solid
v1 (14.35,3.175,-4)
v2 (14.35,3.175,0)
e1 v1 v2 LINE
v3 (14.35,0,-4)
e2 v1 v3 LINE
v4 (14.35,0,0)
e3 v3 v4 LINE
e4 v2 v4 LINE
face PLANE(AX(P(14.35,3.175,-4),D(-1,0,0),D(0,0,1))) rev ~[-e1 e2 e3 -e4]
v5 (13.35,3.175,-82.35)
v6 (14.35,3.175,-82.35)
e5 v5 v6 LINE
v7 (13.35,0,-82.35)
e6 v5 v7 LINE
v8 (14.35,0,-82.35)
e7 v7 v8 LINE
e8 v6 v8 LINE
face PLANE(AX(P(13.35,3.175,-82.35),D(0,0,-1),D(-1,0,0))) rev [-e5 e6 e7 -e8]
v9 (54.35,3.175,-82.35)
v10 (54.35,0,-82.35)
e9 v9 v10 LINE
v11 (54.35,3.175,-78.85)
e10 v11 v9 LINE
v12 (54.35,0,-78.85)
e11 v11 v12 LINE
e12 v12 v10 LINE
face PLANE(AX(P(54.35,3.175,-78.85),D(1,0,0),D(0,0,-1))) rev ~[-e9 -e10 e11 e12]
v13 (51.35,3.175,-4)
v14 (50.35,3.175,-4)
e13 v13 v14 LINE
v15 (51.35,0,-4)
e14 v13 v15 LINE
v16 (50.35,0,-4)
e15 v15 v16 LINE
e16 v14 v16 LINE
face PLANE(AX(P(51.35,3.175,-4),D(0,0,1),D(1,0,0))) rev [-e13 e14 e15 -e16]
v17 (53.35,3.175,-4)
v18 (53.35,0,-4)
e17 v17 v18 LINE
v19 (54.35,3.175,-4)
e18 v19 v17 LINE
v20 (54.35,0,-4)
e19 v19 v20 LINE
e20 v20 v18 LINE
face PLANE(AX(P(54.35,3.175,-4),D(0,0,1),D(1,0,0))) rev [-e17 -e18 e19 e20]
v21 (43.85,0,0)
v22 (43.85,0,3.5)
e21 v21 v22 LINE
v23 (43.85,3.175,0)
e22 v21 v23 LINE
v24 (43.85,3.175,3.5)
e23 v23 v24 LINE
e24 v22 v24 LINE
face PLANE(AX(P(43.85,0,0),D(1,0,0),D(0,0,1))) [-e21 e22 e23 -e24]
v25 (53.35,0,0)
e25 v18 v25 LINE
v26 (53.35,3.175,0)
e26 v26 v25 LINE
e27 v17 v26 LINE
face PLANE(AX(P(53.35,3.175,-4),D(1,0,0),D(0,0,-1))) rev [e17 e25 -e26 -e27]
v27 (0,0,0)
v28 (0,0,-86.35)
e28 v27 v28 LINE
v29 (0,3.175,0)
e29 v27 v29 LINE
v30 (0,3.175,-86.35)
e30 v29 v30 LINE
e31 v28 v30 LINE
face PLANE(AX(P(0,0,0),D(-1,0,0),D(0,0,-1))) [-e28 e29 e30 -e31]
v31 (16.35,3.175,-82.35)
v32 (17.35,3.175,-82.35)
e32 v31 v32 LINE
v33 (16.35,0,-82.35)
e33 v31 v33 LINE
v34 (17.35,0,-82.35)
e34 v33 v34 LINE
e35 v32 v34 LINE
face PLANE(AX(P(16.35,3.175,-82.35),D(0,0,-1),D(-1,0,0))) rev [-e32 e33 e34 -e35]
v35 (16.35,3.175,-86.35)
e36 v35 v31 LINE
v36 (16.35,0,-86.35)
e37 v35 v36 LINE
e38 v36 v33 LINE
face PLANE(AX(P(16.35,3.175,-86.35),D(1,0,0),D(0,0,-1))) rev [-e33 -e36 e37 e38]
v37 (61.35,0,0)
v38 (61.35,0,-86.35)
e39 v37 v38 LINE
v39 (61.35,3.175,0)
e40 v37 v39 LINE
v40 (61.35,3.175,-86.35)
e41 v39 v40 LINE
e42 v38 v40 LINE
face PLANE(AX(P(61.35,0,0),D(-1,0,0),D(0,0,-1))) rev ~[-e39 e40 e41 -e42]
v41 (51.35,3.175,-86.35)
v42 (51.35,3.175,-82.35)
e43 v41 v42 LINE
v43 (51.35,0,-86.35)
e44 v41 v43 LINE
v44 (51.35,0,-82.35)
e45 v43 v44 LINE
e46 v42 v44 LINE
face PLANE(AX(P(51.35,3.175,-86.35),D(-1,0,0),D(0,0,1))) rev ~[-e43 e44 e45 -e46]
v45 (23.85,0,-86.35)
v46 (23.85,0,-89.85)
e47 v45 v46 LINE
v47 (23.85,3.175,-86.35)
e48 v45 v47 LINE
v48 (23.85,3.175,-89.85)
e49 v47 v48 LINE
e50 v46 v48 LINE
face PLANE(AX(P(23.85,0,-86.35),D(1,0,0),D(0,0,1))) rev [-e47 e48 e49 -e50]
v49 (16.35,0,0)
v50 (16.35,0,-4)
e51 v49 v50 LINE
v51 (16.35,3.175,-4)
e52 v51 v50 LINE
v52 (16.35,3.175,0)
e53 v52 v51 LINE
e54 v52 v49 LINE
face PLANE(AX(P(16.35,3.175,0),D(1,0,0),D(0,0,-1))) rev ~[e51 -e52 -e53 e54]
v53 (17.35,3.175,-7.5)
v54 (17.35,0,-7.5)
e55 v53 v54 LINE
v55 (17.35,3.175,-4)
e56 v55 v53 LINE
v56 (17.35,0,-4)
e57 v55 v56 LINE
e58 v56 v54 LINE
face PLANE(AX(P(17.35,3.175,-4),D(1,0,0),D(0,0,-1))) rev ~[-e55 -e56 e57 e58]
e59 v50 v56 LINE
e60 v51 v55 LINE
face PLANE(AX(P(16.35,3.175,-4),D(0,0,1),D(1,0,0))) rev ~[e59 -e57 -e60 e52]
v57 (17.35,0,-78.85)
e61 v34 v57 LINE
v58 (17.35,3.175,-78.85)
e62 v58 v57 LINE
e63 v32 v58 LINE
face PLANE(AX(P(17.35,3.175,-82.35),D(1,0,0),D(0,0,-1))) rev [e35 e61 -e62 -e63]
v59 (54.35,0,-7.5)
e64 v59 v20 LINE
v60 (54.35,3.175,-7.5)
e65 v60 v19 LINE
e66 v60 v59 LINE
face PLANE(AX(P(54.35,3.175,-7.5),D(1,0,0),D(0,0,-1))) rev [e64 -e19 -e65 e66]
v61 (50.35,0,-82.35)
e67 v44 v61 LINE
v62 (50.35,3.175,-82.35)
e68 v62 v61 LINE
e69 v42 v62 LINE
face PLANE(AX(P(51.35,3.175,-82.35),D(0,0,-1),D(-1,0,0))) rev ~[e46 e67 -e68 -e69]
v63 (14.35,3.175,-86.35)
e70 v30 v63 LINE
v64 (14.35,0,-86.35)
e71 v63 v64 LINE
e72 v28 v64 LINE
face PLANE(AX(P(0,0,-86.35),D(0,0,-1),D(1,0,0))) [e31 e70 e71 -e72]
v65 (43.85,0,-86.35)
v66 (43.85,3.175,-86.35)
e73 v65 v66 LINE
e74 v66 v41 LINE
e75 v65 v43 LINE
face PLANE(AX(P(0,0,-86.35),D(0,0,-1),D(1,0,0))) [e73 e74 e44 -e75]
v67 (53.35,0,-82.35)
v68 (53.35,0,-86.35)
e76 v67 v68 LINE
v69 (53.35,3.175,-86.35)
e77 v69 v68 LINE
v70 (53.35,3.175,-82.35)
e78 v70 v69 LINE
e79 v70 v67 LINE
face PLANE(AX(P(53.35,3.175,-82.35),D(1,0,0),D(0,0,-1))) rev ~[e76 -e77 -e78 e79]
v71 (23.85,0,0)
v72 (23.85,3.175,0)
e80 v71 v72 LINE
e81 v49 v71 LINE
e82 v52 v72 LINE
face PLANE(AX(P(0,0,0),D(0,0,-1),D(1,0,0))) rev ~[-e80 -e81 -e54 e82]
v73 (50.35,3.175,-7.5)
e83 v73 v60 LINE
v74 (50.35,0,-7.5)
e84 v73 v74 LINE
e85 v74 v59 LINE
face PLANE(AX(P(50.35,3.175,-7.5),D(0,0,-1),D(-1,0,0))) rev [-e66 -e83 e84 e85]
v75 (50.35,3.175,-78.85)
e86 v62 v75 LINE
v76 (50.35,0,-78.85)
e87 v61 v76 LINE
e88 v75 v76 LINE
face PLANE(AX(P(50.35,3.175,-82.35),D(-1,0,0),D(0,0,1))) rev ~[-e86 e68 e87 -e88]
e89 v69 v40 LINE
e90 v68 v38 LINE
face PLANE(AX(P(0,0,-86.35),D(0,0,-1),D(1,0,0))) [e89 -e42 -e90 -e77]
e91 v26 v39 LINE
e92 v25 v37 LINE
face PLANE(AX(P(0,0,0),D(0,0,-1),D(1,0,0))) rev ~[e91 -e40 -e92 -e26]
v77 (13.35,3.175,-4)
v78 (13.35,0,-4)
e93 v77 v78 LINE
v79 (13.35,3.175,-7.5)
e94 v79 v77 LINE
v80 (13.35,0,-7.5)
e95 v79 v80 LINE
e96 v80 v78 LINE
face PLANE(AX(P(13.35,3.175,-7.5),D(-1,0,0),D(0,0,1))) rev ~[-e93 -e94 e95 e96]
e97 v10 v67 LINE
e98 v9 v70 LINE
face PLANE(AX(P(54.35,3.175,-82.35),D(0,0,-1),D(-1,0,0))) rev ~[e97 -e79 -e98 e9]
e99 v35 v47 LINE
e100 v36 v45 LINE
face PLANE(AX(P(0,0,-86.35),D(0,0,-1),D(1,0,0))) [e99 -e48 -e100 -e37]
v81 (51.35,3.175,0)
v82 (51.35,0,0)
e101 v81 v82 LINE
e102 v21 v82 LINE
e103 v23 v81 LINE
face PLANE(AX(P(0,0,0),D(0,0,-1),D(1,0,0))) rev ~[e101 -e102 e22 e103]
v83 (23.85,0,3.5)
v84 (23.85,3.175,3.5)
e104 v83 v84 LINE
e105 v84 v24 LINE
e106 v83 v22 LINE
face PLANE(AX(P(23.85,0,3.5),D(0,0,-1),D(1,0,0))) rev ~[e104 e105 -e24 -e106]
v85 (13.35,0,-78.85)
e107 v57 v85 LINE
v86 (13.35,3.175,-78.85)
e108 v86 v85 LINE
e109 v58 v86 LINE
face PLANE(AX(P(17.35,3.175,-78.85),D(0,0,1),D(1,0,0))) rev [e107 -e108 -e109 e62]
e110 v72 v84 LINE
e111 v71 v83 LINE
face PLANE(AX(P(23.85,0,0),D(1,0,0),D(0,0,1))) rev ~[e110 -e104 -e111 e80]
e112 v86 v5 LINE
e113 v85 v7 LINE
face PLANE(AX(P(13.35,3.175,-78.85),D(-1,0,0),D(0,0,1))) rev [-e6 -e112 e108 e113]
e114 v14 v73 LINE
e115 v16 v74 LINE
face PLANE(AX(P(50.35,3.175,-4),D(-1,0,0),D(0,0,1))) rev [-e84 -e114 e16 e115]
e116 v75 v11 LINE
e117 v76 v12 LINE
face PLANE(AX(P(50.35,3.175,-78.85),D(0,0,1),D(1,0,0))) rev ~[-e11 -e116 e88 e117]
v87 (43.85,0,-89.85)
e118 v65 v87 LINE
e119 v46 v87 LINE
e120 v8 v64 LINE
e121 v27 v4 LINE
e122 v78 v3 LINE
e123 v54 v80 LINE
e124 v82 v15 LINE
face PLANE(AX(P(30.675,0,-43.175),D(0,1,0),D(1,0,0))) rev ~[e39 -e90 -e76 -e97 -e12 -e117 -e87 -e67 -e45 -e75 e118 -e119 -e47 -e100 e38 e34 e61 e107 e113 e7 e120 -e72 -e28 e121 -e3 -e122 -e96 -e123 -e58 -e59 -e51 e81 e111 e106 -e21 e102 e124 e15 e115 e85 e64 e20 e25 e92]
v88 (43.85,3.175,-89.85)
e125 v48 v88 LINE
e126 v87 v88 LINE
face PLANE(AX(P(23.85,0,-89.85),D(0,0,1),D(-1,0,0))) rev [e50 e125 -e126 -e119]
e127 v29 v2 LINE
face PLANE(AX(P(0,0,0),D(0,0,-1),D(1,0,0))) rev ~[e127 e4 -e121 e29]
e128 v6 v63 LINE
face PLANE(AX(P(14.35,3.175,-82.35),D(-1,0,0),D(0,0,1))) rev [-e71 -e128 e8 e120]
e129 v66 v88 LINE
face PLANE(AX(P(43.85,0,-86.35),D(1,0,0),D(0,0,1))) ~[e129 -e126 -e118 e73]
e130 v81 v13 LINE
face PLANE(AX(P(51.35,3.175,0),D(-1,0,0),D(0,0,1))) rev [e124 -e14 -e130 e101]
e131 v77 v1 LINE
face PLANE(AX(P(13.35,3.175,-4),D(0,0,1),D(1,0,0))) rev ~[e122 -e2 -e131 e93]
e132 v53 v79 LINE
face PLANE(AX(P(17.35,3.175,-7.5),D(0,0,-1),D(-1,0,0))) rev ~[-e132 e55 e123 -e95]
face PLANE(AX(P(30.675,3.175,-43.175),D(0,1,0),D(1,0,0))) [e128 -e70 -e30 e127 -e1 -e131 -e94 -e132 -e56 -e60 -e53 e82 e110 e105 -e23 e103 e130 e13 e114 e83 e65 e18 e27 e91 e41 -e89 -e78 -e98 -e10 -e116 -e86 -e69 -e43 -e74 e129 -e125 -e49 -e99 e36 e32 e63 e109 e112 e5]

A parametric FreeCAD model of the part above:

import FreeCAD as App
import Part
import Sketcher

V = App.Vector
Q = App.Units.Quantity

doc = App.newDocument("Part")
params = doc.addObject("Spreadsheet::Sheet", "Params")
for row, (alias, value) in enumerate([
    ("sketch1_width", "61.35 mm"),
    ("sketch1_height", "86.35 mm"),
    ("pad1_length", "3.175 mm"),
    ("sketch2_width", "20 mm"),
    ("sketch2_height", "3.5 mm"),
    ("pad2_length", "3.175 mm"),
    ("sketch3_width", "1 mm"),
    ("sketch3_width2", "4 mm"),
    ("sketch3_height", "3.5 mm"),
    ("pocket1_length", "3.175 mm"),
    ("sketch4_width", "1 mm"),
    ("sketch4_width2", "4 mm"),
    ("sketch4_height", "3.5 mm"),
    ("pocket2_length", "3.175 mm"),
], start=1):
    params.set(f"A{row}", alias)
    params.set(f"B{row}", "=" + value)
    params.setAlias(f"B{row}", alias)

body = doc.addObject("PartDesign::Body", "Body")

sketch1 = body.newObject("Sketcher::SketchObject", "Sketch")
sketch1.AttachmentSupport = (doc.getObject("XZ_Plane"), [""])
sketch1.MapMode = "FlatFace"
sketch1.addGeometry(Part.LineSegment(V(0, -86, 0), V(0, 0, 0)), False)
sketch1.addGeometry(Part.LineSegment(V(0, 0, 0), V(61, 0, 0)), False)
sketch1.addGeometry(Part.LineSegment(V(61, 0, 0), V(61, -86, 0)), False)
sketch1.addGeometry(Part.LineSegment(V(61, -86, 0), V(0, -86, 0)), False)
sketch1.addConstraint(Sketcher.Constraint("Coincident", 0, 2, 1, 1))
sketch1.addConstraint(Sketcher.Constraint("Coincident", 1, 2, 2, 1))
sketch1.addConstraint(Sketcher.Constraint("Coincident", 2, 2, 3, 1))
sketch1.addConstraint(Sketcher.Constraint("Coincident", 3, 2, 0, 1))
sketch1.addConstraint(Sketcher.Constraint("Vertical", 0))
sketch1.addConstraint(Sketcher.Constraint("Horizontal", 1))
sketch1.addConstraint(Sketcher.Constraint("Vertical", 2))
sketch1.addConstraint(Sketcher.Constraint("Horizontal", 3))
sketch1.addConstraint(Sketcher.Constraint("Coincident", 0, 2, -1, 1))
sketch1.addConstraint(Sketcher.Constraint("DistanceX", 1, 1, 1, 2, Q("61.35 mm")))
sketch1.addConstraint(Sketcher.Constraint("DistanceY", 0, 1, 0, 2, Q("86.35 mm")))
sketch1.setExpression("Constraints[9]", "Params.sketch1_width")
sketch1.setExpression("Constraints[10]", "Params.sketch1_height")
pad1 = body.newObject("PartDesign::Pad", "Pad")
pad1.Profile = sketch1
pad1.setExpression("Length", "Params.pad1_length")
pad1.Reversed = True

sketch2 = body.newObject("Sketcher::SketchObject", "Sketch001")
sketch2.AttachmentSupport = (doc.getObject("XZ_Plane"), [""])
sketch2.MapMode = "FlatFace"
sketch2.addGeometry(Part.LineSegment(V(23.9, 3.5, 0), V(23.9, 0, 0)), False)
sketch2.addGeometry(Part.LineSegment(V(23.9, 0, 0), V(43.9, 0, 0)), False)
sketch2.addGeometry(Part.LineSegment(V(43.9, 0, 0), V(43.9, 3.5, 0)), False)
sketch2.addGeometry(Part.LineSegment(V(43.9, 3.5, 0), V(23.9, 3.5, 0)), False)
sketch2.addConstraint(Sketcher.Constraint("Coincident", 0, 2, 1, 1))
sketch2.addConstraint(Sketcher.Constraint("Coincident", 1, 2, 2, 1))
sketch2.addConstraint(Sketcher.Constraint("Coincident", 2, 2, 3, 1))
sketch2.addConstraint(Sketcher.Constraint("Coincident", 3, 2, 0, 1))
sketch2.addConstraint(Sketcher.Constraint("Vertical", 0))
sketch2.addConstraint(Sketcher.Constraint("Horizontal", 1))
sketch2.addConstraint(Sketcher.Constraint("Vertical", 2))
sketch2.addConstraint(Sketcher.Constraint("Horizontal", 3))
sketch2.addConstraint(Sketcher.Constraint("PointOnObject", 0, 2, -1))
sketch2.addConstraint(Sketcher.Constraint("DistanceX", 1, 1, 1, 2, Q("20 mm")))
sketch2.addConstraint(Sketcher.Constraint("DistanceY", 0, 2, 0, 1, Q("3.5 mm")))
sketch2.addConstraint(Sketcher.Constraint("DistanceX", -1, 1, 0, 2, Q("23.85 mm")))
sketch2.setExpression("Constraints[9]", "Params.sketch2_width")
sketch2.setExpression("Constraints[10]", "Params.sketch2_height")
pad2 = body.newObject("PartDesign::Pad", "Pad001")
pad2.Profile = sketch2
pad2.setExpression("Length", "Params.pad2_length")
pad2.Reversed = True

sketch3 = body.newObject("Sketcher::SketchObject", "Sketch002")
sketch3.AttachmentSupport = (doc.getObject("XZ_Plane"), [""])
sketch3.MapMode = "FlatFace"
sketch3.AttachmentOffset = App.Placement(V(0, 0, -3.175), App.Rotation())
sketch3.addGeometry(Part.LineSegment(V(16.4, 0, 0), V(16.4, -4, 0)), False)
sketch3.addGeometry(Part.LineSegment(V(16.4, -4, 0), V(17.4, -4, 0)), False)
sketch3.addGeometry(Part.LineSegment(V(17.4, -4, 0), V(17.4, -7.5, 0)), False)
sketch3.addGeometry(Part.LineSegment(V(17.4, -7.5, 0), V(13.3, -7.5, 0)), False)
sketch3.addGeometry(Part.LineSegment(V(13.3, -7.5, 0), V(13.3, -4, 0)), False)
sketch3.addGeometry(Part.LineSegment(V(13.3, -4, 0), V(14.3, -4, 0)), False)
sketch3.addGeometry(Part.LineSegment(V(14.3, -4, 0), V(14.3, 0, 0)), False)
sketch3.addGeometry(Part.LineSegment(V(14.3, 0, 0), V(16.4, 0, 0)), False)
sketch3.addConstraint(Sketcher.Constraint("Coincident", 0, 2, 1, 1))
sketch3.addConstraint(Sketcher.Constraint("Coincident", 1, 2, 2, 1))
sketch3.addConstraint(Sketcher.Constraint("Coincident", 2, 2, 3, 1))
sketch3.addConstraint(Sketcher.Constraint("Coincident", 3, 2, 4, 1))
sketch3.addConstraint(Sketcher.Constraint("Coincident", 4, 2, 5, 1))
sketch3.addConstraint(Sketcher.Constraint("Coincident", 5, 2, 6, 1))
sketch3.addConstraint(Sketcher.Constraint("Coincident", 6, 2, 7, 1))
sketch3.addConstraint(Sketcher.Constraint("Coincident", 7, 2, 0, 1))
sketch3.addConstraint(Sketcher.Constraint("Vertical", 0))
sketch3.addConstraint(Sketcher.Constraint("Horizontal", 1))
sketch3.addConstraint(Sketcher.Constraint("Vertical", 2))
sketch3.addConstraint(Sketcher.Constraint("Horizontal", 3))
sketch3.addConstraint(Sketcher.Constraint("Vertical", 4))
sketch3.addConstraint(Sketcher.Constraint("Horizontal", 5))
sketch3.addConstraint(Sketcher.Constraint("Vertical", 6))
sketch3.addConstraint(Sketcher.Constraint("Horizontal", 7))
sketch3.addConstraint(Sketcher.Constraint("PointOnObject", 6, 2, -1))
sketch3.addConstraint(Sketcher.Constraint("Horizontal", 1, 2, 4, 2))
sketch3.addConstraint(Sketcher.Constraint("Equal", 1, 5))
sketch3.addConstraint(Sketcher.Constraint("Equal", 3, 0))
sketch3.addConstraint(Sketcher.Constraint("DistanceX", 1, 1, 1, 2, Q("1 mm")))
sketch3.addConstraint(Sketcher.Constraint("DistanceX", 3, 2, 3, 1, Q("4 mm")))
sketch3.addConstraint(Sketcher.Constraint("DistanceY", 2, 2, 2, 1, Q("3.5 mm")))
sketch3.addConstraint(Sketcher.Constraint("DistanceX", -1, 1, 0, 2, Q("16.35 mm")))
sketch3.setExpression("Constraints[20]", "Params.sketch3_width")
sketch3.setExpression("Constraints[21]", "Params.sketch3_width2")
sketch3.setExpression("Constraints[22]", "Params.sketch3_height")
pocket1 = body.newObject("PartDesign::Pocket", "Pocket")
pocket1.Profile = sketch3
pocket1.setExpression("Length", "Params.pocket1_length")
pocket1.Reversed = True
doc.recompute()

datumplane = body.newObject("PartDesign::Plane", "DatumPlane")
datumplane.AttachmentSupport = (doc.getObject("YZ_Plane"), [""])
datumplane.MapMode = "FlatFace"
datumplane.AttachmentOffset = App.Placement(V(0, 0, 33.85), App.Rotation())
mirrored = body.newObject("PartDesign::Mirrored", "Mirrored")
mirrored.Originals = [pocket1]
mirrored.MirrorPlane = (datumplane, [""])
body.Tip = mirrored
doc.recompute()

datumplane2 = body.newObject("PartDesign::Plane", "DatumPlane001")
datumplane2.AttachmentSupport = (doc.getObject("XY_Plane"), [""])
datumplane2.MapMode = "FlatFace"
datumplane2.AttachmentOffset = App.Placement(V(0, 0, -43.175), App.Rotation())
mirrored2 = body.newObject("PartDesign::Mirrored", "Mirrored001")
mirrored2.Originals = [pad2, pocket1]
mirrored2.MirrorPlane = (datumplane2, [""])
body.Tip = mirrored2

sketch4 = body.newObject("Sketcher::SketchObject", "Sketch003")
sketch4.AttachmentSupport = (doc.getObject("XZ_Plane"), [""])
sketch4.MapMode = "FlatFace"
sketch4.AttachmentOffset = App.Placement(V(0, 0, -3.175), App.Rotation())
sketch4.addGeometry(Part.LineSegment(V(51.4, -86.3, 0), V(51.4, -82.3, 0)), False)
sketch4.addGeometry(Part.LineSegment(V(51.4, -82.3, 0), V(50.4, -82.3, 0)), False)
sketch4.addGeometry(Part.LineSegment(V(50.4, -82.3, 0), V(50.4, -78.8, 0)), False)
sketch4.addGeometry(Part.LineSegment(V(50.4, -78.8, 0), V(54.4, -78.8, 0)), False)
sketch4.addGeometry(Part.LineSegment(V(54.4, -78.8, 0), V(54.4, -82.3, 0)), False)
sketch4.addGeometry(Part.LineSegment(V(54.4, -82.3, 0), V(53.4, -82.3, 0)), False)
sketch4.addGeometry(Part.LineSegment(V(53.4, -82.3, 0), V(53.4, -86.3, 0)), False)
sketch4.addGeometry(Part.LineSegment(V(53.4, -86.3, 0), V(51.4, -86.3, 0)), False)
sketch4.addConstraint(Sketcher.Constraint("Coincident", 0, 2, 1, 1))
sketch4.addConstraint(Sketcher.Constraint("Coincident", 1, 2, 2, 1))
sketch4.addConstraint(Sketcher.Constraint("Coincident", 2, 2, 3, 1))
sketch4.addConstraint(Sketcher.Constraint("Coincident", 3, 2, 4, 1))
sketch4.addConstraint(Sketcher.Constraint("Coincident", 4, 2, 5, 1))
sketch4.addConstraint(Sketcher.Constraint("Coincident", 5, 2, 6, 1))
sketch4.addConstraint(Sketcher.Constraint("Coincident", 6, 2, 7, 1))
sketch4.addConstraint(Sketcher.Constraint("Coincident", 7, 2, 0, 1))
sketch4.addConstraint(Sketcher.Constraint("Vertical", 0))
sketch4.addConstraint(Sketcher.Constraint("Horizontal", 1))
sketch4.addConstraint(Sketcher.Constraint("Vertical", 2))
sketch4.addConstraint(Sketcher.Constraint("Horizontal", 3))
sketch4.addConstraint(Sketcher.Constraint("Vertical", 4))
sketch4.addConstraint(Sketcher.Constraint("Horizontal", 5))
sketch4.addConstraint(Sketcher.Constraint("Vertical", 6))
sketch4.addConstraint(Sketcher.Constraint("Horizontal", 7))
sketch4.addConstraint(Sketcher.Constraint("Horizontal", 1, 2, 4, 2))
sketch4.addConstraint(Sketcher.Constraint("Equal", 1, 5))
sketch4.addConstraint(Sketcher.Constraint("Equal", 3, 0))
sketch4.addConstraint(Sketcher.Constraint("DistanceX", 1, 2, 1, 1, Q("1 mm")))
sketch4.addConstraint(Sketcher.Constraint("DistanceX", 3, 1, 3, 2, Q("4 mm")))
sketch4.addConstraint(Sketcher.Constraint("DistanceY", 2, 1, 2, 2, Q("3.5 mm")))
sketch4.addConstraint(Sketcher.Constraint("DistanceX", -1, 1, 0, 2, Q("51.35 mm")))
sketch4.addConstraint(Sketcher.Constraint("DistanceY", 0, 2, -1, 1, Q("82.35 mm")))
sketch4.setExpression("Constraints[19]", "Params.sketch4_width")
sketch4.setExpression("Constraints[20]", "Params.sketch4_width2")
sketch4.setExpression("Constraints[21]", "Params.sketch4_height")
pocket2 = body.newObject("PartDesign::Pocket", "Pocket001")
pocket2.Profile = sketch4
pocket2.setExpression("Length", "Params.pocket2_length")
pocket2.Reversed = True

doc.recompute()
